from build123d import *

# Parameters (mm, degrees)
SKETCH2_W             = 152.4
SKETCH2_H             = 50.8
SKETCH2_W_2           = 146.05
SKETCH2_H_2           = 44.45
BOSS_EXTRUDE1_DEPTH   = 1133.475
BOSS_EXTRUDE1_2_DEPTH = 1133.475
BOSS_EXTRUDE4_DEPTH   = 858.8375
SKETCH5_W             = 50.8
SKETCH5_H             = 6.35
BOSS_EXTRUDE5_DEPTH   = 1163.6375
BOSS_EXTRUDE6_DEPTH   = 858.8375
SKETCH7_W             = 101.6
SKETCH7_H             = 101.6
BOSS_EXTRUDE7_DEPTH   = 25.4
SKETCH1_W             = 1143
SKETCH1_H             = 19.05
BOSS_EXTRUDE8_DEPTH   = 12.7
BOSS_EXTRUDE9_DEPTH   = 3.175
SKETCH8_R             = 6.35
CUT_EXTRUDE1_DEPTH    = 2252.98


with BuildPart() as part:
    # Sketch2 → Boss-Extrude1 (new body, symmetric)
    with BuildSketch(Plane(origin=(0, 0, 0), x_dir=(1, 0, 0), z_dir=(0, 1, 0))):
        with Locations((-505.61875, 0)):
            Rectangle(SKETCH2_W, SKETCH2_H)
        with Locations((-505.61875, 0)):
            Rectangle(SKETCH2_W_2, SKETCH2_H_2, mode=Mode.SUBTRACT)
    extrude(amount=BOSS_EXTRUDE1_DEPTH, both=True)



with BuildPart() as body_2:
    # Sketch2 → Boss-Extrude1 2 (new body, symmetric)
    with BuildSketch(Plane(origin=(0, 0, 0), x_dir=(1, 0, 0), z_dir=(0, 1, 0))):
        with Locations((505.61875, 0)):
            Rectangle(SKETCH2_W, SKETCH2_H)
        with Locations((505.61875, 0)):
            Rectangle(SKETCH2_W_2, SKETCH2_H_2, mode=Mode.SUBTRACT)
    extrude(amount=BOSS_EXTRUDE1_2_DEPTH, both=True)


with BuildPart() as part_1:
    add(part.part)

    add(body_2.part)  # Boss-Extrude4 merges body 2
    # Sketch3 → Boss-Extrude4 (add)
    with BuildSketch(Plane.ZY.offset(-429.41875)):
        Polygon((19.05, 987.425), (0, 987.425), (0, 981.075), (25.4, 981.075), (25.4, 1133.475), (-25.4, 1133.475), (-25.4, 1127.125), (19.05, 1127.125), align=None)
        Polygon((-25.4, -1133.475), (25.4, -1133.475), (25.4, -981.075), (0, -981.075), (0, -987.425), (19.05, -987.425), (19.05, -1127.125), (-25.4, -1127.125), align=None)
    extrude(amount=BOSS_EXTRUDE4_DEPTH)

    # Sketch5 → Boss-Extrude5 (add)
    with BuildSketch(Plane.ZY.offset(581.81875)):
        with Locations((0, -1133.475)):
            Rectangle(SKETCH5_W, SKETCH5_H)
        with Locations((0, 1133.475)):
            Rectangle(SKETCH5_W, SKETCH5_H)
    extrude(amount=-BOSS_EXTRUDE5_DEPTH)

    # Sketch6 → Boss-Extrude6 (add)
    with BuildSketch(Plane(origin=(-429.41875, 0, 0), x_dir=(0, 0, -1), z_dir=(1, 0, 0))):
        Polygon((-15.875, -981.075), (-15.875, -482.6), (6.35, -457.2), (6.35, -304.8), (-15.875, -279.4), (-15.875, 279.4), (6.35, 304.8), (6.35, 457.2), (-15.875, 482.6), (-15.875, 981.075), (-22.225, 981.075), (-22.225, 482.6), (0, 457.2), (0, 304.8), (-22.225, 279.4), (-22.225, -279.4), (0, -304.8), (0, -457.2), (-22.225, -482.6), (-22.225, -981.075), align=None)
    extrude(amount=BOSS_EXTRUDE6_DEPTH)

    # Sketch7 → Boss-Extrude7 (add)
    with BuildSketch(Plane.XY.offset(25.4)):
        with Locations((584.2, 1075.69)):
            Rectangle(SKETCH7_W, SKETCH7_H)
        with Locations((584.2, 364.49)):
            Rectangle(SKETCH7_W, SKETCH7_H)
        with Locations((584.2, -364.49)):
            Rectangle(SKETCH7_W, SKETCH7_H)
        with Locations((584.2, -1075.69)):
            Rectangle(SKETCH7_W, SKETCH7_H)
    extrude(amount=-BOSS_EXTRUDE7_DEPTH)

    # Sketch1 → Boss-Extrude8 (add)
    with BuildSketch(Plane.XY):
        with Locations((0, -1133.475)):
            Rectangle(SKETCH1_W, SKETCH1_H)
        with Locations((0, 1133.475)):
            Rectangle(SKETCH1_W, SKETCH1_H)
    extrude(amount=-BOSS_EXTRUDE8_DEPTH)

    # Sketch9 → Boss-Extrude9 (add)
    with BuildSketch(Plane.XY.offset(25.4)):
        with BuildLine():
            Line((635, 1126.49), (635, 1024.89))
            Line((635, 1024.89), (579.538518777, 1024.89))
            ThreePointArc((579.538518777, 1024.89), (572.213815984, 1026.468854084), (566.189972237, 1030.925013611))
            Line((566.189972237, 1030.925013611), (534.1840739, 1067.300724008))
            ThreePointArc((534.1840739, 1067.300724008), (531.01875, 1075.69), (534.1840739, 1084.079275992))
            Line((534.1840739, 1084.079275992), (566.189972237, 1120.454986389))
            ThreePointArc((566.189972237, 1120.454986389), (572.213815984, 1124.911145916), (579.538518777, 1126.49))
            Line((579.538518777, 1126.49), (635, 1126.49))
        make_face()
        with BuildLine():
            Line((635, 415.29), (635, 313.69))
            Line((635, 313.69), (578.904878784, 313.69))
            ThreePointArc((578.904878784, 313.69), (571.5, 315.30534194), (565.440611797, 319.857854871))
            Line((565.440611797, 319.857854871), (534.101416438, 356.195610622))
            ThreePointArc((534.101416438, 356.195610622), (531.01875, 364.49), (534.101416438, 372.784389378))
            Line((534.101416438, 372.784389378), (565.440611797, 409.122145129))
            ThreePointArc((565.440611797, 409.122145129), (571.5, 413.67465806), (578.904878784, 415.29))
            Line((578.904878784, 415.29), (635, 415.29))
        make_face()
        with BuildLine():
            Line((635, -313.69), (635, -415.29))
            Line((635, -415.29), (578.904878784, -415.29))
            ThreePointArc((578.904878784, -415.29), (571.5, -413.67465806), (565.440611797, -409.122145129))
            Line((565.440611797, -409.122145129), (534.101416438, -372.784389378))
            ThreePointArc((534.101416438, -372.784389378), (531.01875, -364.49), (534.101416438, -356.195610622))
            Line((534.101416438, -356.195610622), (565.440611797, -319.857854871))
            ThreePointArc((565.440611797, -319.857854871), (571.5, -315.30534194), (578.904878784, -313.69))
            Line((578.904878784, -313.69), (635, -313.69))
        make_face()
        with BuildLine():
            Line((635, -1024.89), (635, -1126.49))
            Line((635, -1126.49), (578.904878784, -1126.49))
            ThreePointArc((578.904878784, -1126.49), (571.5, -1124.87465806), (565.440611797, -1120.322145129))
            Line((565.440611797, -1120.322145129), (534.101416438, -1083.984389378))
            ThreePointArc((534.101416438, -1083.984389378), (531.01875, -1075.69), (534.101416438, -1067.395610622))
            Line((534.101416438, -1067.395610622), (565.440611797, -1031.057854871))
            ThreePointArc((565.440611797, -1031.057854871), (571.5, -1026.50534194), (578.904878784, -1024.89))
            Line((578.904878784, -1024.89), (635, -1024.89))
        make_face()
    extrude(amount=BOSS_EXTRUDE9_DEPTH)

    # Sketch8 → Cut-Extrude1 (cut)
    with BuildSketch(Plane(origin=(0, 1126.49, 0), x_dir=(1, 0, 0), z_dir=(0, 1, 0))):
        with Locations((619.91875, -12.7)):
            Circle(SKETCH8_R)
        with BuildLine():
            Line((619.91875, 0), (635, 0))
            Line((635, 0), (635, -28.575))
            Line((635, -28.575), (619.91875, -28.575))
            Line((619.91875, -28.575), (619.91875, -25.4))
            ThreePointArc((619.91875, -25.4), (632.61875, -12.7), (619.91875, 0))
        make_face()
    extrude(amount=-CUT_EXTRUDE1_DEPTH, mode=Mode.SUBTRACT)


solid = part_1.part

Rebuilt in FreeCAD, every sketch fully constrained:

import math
import FreeCAD as App
import Part
import Sketcher

V = App.Vector
Q = App.Units.Quantity


def add_polygon(sketch, points):
    """Adds a closed chain of lines whose ends are joined by coincident constraints."""
    first, n = sketch.GeometryCount, len(points)
    for a, b in zip(points, points[1:] + points[:1]):
        sketch.addGeometry(Part.LineSegment(App.Vector(*a, 0), App.Vector(*b, 0)), False)
    for i in range(n):
        sketch.addConstraint(Sketcher.Constraint("Coincident", first + i, 2, first + (i + 1) % n, 1))

doc = App.newDocument("Part")
body = doc.addObject("PartDesign::Body", "Body")

# Sketch on XZ plane
sketch1 = body.newObject("Sketcher::SketchObject", "Sketch")
sketch1.AttachmentSupport = (doc.getObject("XZ_Plane"), [""])
sketch1.MapMode = "FlatFace"
add_polygon(sketch1, [(-582, -25), (-582, 25), (-429, 25), (-429, -25)])  # lines 0-3
add_polygon(sketch1, [(-433, 22), (-579, 22), (-579, -22), (-433, -22)])  # lines 4-7
sketch1.addConstraint(Sketcher.Constraint("Vertical", 0))
sketch1.addConstraint(Sketcher.Constraint("Horizontal", 1))
sketch1.addConstraint(Sketcher.Constraint("Vertical", 2))
sketch1.addConstraint(Sketcher.Constraint("Horizontal", 3))
sketch1.addConstraint(Sketcher.Constraint("Horizontal", 4))
sketch1.addConstraint(Sketcher.Constraint("Vertical", 5))
sketch1.addConstraint(Sketcher.Constraint("Horizontal", 6))
sketch1.addConstraint(Sketcher.Constraint("Vertical", 7))
sketch1.addConstraint(Sketcher.Constraint("DistanceX", 1, 1, 1, 2, Q("6 in")))
sketch1.addConstraint(Sketcher.Constraint("DistanceY", 0, 1, 0, 2, Q("2 in")))
sketch1.addConstraint(Sketcher.Constraint("DistanceY", -1, 1, 0, 2, Q("1 in")))
sketch1.addConstraint(Sketcher.Constraint("DistanceX", 4, 2, 4, 1, Q("5.75 in")))
sketch1.addConstraint(Sketcher.Constraint("DistanceY", 5, 2, 5, 1, Q("1.75 in")))
sketch1.addConstraint(Sketcher.Constraint("DistanceX", 0, 2, -1, 1, Q("22.90625 in")))
sketch1.addConstraint(Sketcher.Constraint("DistanceX", 4, 2, -1, 1, Q("22.78125 in")))
sketch1.addConstraint(Sketcher.Constraint("DistanceY", -1, 1, 4, 2, Q("0.875 in")))
pad1 = body.newObject("PartDesign::Pad", "Pad")
pad1.Profile = sketch1
pad1.Length = Q("89.25 in")
pad1.Midplane = True
body2 = doc.addObject("PartDesign::Body", "Body001")

# Sketch on XZ plane
sketch2 = body2.newObject("Sketcher::SketchObject", "Sketch001")
sketch2.AttachmentSupport = (doc.getObject("XZ_Plane001"), [""])
sketch2.MapMode = "FlatFace"
add_polygon(sketch2, [(429, -25), (429, 25), (582, 25), (582, -25)])  # lines 0-3
add_polygon(sketch2, [(579, 22), (433, 22), (433, -22), (579, -22)])  # lines 4-7
sketch2.addConstraint(Sketcher.Constraint("Vertical", 0))
sketch2.addConstraint(Sketcher.Constraint("Horizontal", 1))
sketch2.addConstraint(Sketcher.Constraint("Vertical", 2))
sketch2.addConstraint(Sketcher.Constraint("Horizontal", 3))
sketch2.addConstraint(Sketcher.Constraint("Horizontal", 4))
sketch2.addConstraint(Sketcher.Constraint("Vertical", 5))
sketch2.addConstraint(Sketcher.Constraint("Horizontal", 6))
sketch2.addConstraint(Sketcher.Constraint("Vertical", 7))
sketch2.addConstraint(Sketcher.Constraint("DistanceX", 1, 1, 1, 2, Q("6 in")))
sketch2.addConstraint(Sketcher.Constraint("DistanceY", 0, 1, 0, 2, Q("2 in")))
sketch2.addConstraint(Sketcher.Constraint("DistanceY", -1, 1, 0, 2, Q("1 in")))
sketch2.addConstraint(Sketcher.Constraint("DistanceX", 4, 2, 4, 1, Q("5.75 in")))
sketch2.addConstraint(Sketcher.Constraint("DistanceY", 5, 2, 5, 1, Q("1.75 in")))
sketch2.addConstraint(Sketcher.Constraint("DistanceX", -1, 1, 0, 2, Q("16.90625 in")))
sketch2.addConstraint(Sketcher.Constraint("DistanceX", -1, 1, 4, 2, Q("17.03125 in")))
sketch2.addConstraint(Sketcher.Constraint("DistanceY", -1, 1, 4, 2, Q("0.875 in")))
pad2 = body2.newObject("PartDesign::Pad", "Pad001")
pad2.Profile = sketch2
pad2.Length = Q("89.25 in")
pad2.Midplane = True
body.AllowCompound = True
doc.recompute()

boolean = body.newObject("PartDesign::Boolean", "Boolean")
boolean.Type = "Fuse"
boolean.addObjects([body2])

# Sketch on YZ plane
sketch3 = body.newObject("Sketcher::SketchObject", "Sketch002")
sketch3.AttachmentSupport = (doc.getObject("YZ_Plane"), [""])
sketch3.MapMode = "FlatFace"
sketch3.AttachmentOffset = App.Placement(V(0, 0, 16.90625 * 25.4), App.Rotation())
add_polygon(sketch3, [(987, 19), (987, 0), (981, 0), (981, 25), (1133, 25), (1133, -25), (1127, -25), (1127, 19)])  # lines 0-7
add_polygon(sketch3, [(-1133, -25), (-1133, 25), (-981, 25), (-981, 0), (-987, 0), (-987, 19), (-1127, 19), (-1127, -25)])  # lines 8-15
sketch3.addConstraint(Sketcher.Constraint("Vertical", 0))
sketch3.addConstraint(Sketcher.Constraint("Horizontal", 1))
sketch3.addConstraint(Sketcher.Constraint("Vertical", 2))
sketch3.addConstraint(Sketcher.Constraint("Horizontal", 3))
sketch3.addConstraint(Sketcher.Constraint("Vertical", 4))
sketch3.addConstraint(Sketcher.Constraint("Horizontal", 5))
sketch3.addConstraint(Sketcher.Constraint("Vertical", 6))
sketch3.addConstraint(Sketcher.Constraint("Horizontal", 7))
sketch3.addConstraint(Sketcher.Constraint("Vertical", 8))
sketch3.addConstraint(Sketcher.Constraint("Horizontal", 9))
sketch3.addConstraint(Sketcher.Constraint("Vertical", 10))
sketch3.addConstraint(Sketcher.Constraint("Horizontal", 11))
sketch3.addConstraint(Sketcher.Constraint("Vertical", 12))
sketch3.addConstraint(Sketcher.Constraint("Horizontal", 13))
sketch3.addConstraint(Sketcher.Constraint("Vertical", 14))
sketch3.addConstraint(Sketcher.Constraint("Horizontal", 15))
sketch3.addConstraint(Sketcher.Constraint("Symmetric", 4, 2, 8, 2, -1, 1))
sketch3.addConstraint(Sketcher.Constraint("Symmetric", 1, 2, 10, 2, -1, 1))
sketch3.addConstraint(Sketcher.Constraint("Symmetric", 0, 2, 11, 2, -2))
sketch3.addConstraint(Sketcher.Constraint("Symmetric", 6, 2, 13, 2, -2))
sketch3.addConstraint(Sketcher.Constraint("Horizontal", 3, 2, 8, 2))
sketch3.addConstraint(Sketcher.Constraint("Horizontal", 5, 2, 14, 2))
sketch3.addConstraint(Sketcher.Constraint("Equal", 1, 5))
sketch3.addConstraint(Sketcher.Constraint("DistanceX", 3, 1, 3, 2, Q("6 in")))
sketch3.addConstraint(Sketcher.Constraint("DistanceY", 2, 1, 2, 2, Q("1 in")))
sketch3.addConstraint(Sketcher.Constraint("DistanceX", 7, 2, 7, 1, Q("5.5 in")))
sketch3.addConstraint(Sketcher.Constraint("DistanceX", 8, 2, 6, 2, Q("89 in")))
sketch3.addConstraint(Sketcher.Constraint("DistanceY", 0, 2, 0, 1, Q("0.75 in")))
pad3 = body.newObject("PartDesign::Pad", "Pad002")
pad3.Profile = sketch3
pad3.Length = Q("33.8125 in")
pad3.Reversed = True

# Sketch on YZ plane
sketch4 = body.newObject("Sketcher::SketchObject", "Sketch003")
sketch4.AttachmentSupport = (doc.getObject("YZ_Plane"), [""])
sketch4.MapMode = "FlatFace"
sketch4.AttachmentOffset = App.Placement(V(0, 0, -22.90625 * 25.4), App.Rotation())
add_polygon(sketch4, [(-1130, -25), (-1137, -25), (-1137, 25), (-1130, 25)])  # lines 0-3
add_polygon(sketch4, [(1137, -25), (1130, -25), (1130, 25), (1137, 25)])  # lines 4-7
sketch4.addConstraint(Sketcher.Constraint("Horizontal", 0))
sketch4.addConstraint(Sketcher.Constraint("Vertical", 1))
sketch4.addConstraint(Sketcher.Constraint("Horizontal", 2))
sketch4.addConstraint(Sketcher.Constraint("Vertical", 3))
sketch4.addConstraint(Sketcher.Constraint("Horizontal", 4))
sketch4.addConstraint(Sketcher.Constraint("Vertical", 5))
sketch4.addConstraint(Sketcher.Constraint("Horizontal", 6))
sketch4.addConstraint(Sketcher.Constraint("Vertical", 7))
sketch4.addConstraint(Sketcher.Constraint("Symmetric", 2, 2, 4, 2, -1, 1))
sketch4.addConstraint(Sketcher.Constraint("Symmetric", 0, 2, 6, 2, -1, 1))
sketch4.addConstraint(Sketcher.Constraint("Horizontal", 3, 2, 4, 2))
sketch4.addConstraint(Sketcher.Constraint("DistanceY", 1, 1, 1, 2, Q("2 in")))
sketch4.addConstraint(Sketcher.Constraint("DistanceX", 3, 2, 4, 2, Q("89 in")))
sketch4.addConstraint(Sketcher.Constraint("DistanceX", 0, 2, 0, 1, Q("0.25 in")))
pad4 = body.newObject("PartDesign::Pad", "Pad003")
pad4.Profile = sketch4
pad4.Length = Q("45.8125 in")

# Sketch on YZ plane
sketch5 = body.newObject("Sketcher::SketchObject", "Sketch004")
sketch5.AttachmentSupport = (doc.getObject("YZ_Plane"), [""])
sketch5.MapMode = "FlatFace"
sketch5.AttachmentOffset = App.Placement(V(0, 0, -16.90625 * 25.4), App.Rotation())
add_polygon(sketch5, [(-981, 16), (-483, 16), (-457, -6), (-305, -6), (-279, 16), (279, 16), (305, -6), (457, -6), (483, 16), (981, 16), (981, 22), (483, 22), (457, 0), (305, 0), (279, 22), (-279, 22), (-305, 0), (-457, 0), (-483, 22), (-981, 22)])  # lines 0-19
sketch5.addConstraint(Sketcher.Constraint("Horizontal", 0))
sketch5.addConstraint(Sketcher.Constraint("Horizontal", 2))
sketch5.addConstraint(Sketcher.Constraint("Horizontal", 4))
sketch5.addConstraint(Sketcher.Constraint("Horizontal", 6))
sketch5.addConstraint(Sketcher.Constraint("Horizontal", 8))
sketch5.addConstraint(Sketcher.Constraint("Vertical", 9))
sketch5.addConstraint(Sketcher.Constraint("Horizontal", 10))
sketch5.addConstraint(Sketcher.Constraint("Horizontal", 12))
sketch5.addConstraint(Sketcher.Constraint("Horizontal", 14))
sketch5.addConstraint(Sketcher.Constraint("Horizontal", 16))
sketch5.addConstraint(Sketcher.Constraint("Horizontal", 18))
sketch5.addConstraint(Sketcher.Constraint("Vertical", 19))
sketch5.addConstraint(Sketcher.Constraint("Symmetric", 12, 2, 15, 2, -1, 1))
sketch5.addConstraint(Sketcher.Constraint("Symmetric", 2, 2, 5, 2, -2))
sketch5.addConstraint(Sketcher.Constraint("Symmetric", 0, 2, 7, 2, -2))
sketch5.addConstraint(Sketcher.Constraint("Symmetric", 11, 2, 16, 2, -2))
sketch5.addConstraint(Sketcher.Constraint("Symmetric", 10, 2, 17, 2, -2))
sketch5.addConstraint(Sketcher.Constraint("Parallel", 1, 5))
sketch5.addConstraint(Sketcher.Constraint("Parallel", 3, 7))
sketch5.addConstraint(Sketcher.Constraint("Parallel", 7, 11))
sketch5.addConstraint(Sketcher.Constraint("Parallel", 5, 13))
sketch5.addConstraint(Sketcher.Constraint("Parallel", 11, 15))
sketch5.addConstraint(Sketcher.Constraint("Parallel", 13, 17))
sketch5.addConstraint(Sketcher.Constraint("Horizontal", 0, 2, 3, 2))
sketch5.addConstraint(Sketcher.Constraint("Horizontal", 10, 2, 13, 2))
sketch5.addConstraint(Sketcher.Constraint("Vertical", 7, 2, 10, 2))
sketch5.addConstraint(Sketcher.Constraint("Vertical", 6, 2, 11, 2))
sketch5.addConstraint(Sketcher.Constraint("Vertical", 5, 2, 12, 2))
sketch5.addConstraint(Sketcher.Constraint("Equal", 0, 8))
sketch5.addConstraint(Sketcher.Constraint("DistanceX", 2, 1, 2, 2, Q("6 in")))
sketch5.addConstraint(Sketcher.Constraint("DistanceX", 4, 1, 4, 2, Q("22 in")))
sketch5.addConstraint(Sketcher.Constraint("DistanceX", 0, 2, -1, 1, Q("19 in")))
sketch5.addConstraint(Sketcher.Constraint("DistanceY", 9, 1, 9, 2, Q("0.25 in")))
sketch5.addConstraint(Sketcher.Constraint("DistanceX", 0, 1, 0, 2, Q("19.625 in")))
sketch5.addConstraint(Sketcher.Constraint("DistanceY", -1, 1, 0, 2, Q("0.625 in")))
pad5 = body.newObject("PartDesign::Pad", "Pad004")
pad5.Profile = sketch5
pad5.Length = Q("33.8125 in")

# Sketch on XY plane
sketch6 = body.newObject("Sketcher::SketchObject", "Sketch005")
sketch6.AttachmentSupport = (doc.getObject("XY_Plane"), [""])
sketch6.MapMode = "FlatFace"
sketch6.AttachmentOffset = App.Placement(V(0, 0, 1 * 25.4), App.Rotation())
add_polygon(sketch6, [(533, 1126), (533, 1025), (635, 1025), (635, 1126)])  # lines 0-3
add_polygon(sketch6, [(533, 415), (533, 314), (635, 314), (635, 415)])  # lines 4-7
add_polygon(sketch6, [(533, -314), (533, -415), (635, -415), (635, -314)])  # lines 8-11
add_polygon(sketch6, [(533, -1025), (533, -1126), (635, -1126), (635, -1025)])  # lines 12-15
sketch6.addConstraint(Sketcher.Constraint("Vertical", 0))
sketch6.addConstraint(Sketcher.Constraint("Horizontal", 1))
sketch6.addConstraint(Sketcher.Constraint("Vertical", 2))
sketch6.addConstraint(Sketcher.Constraint("Horizontal", 3))
sketch6.addConstraint(Sketcher.Constraint("Vertical", 4))
sketch6.addConstraint(Sketcher.Constraint("Horizontal", 5))
sketch6.addConstraint(Sketcher.Constraint("Vertical", 6))
sketch6.addConstraint(Sketcher.Constraint("Horizontal", 7))
sketch6.addConstraint(Sketcher.Constraint("Vertical", 8))
sketch6.addConstraint(Sketcher.Constraint("Horizontal", 9))
sketch6.addConstraint(Sketcher.Constraint("Vertical", 10))
sketch6.addConstraint(Sketcher.Constraint("Horizontal", 11))
sketch6.addConstraint(Sketcher.Constraint("Vertical", 12))
sketch6.addConstraint(Sketcher.Constraint("Horizontal", 13))
sketch6.addConstraint(Sketcher.Constraint("Vertical", 14))
sketch6.addConstraint(Sketcher.Constraint("Horizontal", 15))
sketch6.addConstraint(Sketcher.Constraint("Symmetric", 7, 2, 8, 2, -1))
sketch6.addConstraint(Sketcher.Constraint("Symmetric", 5, 2, 10, 2, -1))
sketch6.addConstraint(Sketcher.Constraint("Symmetric", 3, 2, 12, 2, -1))
sketch6.addConstraint(Sketcher.Constraint("Symmetric", 1, 2, 14, 2, -1))
sketch6.addConstraint(Sketcher.Constraint("Vertical", 3, 2, 4, 2))
sketch6.addConstraint(Sketcher.Constraint("Vertical", 2, 2, 5, 2))
sketch6.addConstraint(Sketcher.Constraint("Equal", 15, 0))
sketch6.addConstraint(Sketcher.Constraint("Equal", 2, 4))
sketch6.addConstraint(Sketcher.Constraint("DistanceX", 1, 1, 1, 2, Q("4 in")))
sketch6.addConstraint(Sketcher.Constraint("DistanceX", -1, 1, 0, 2, Q("21 in")))
sketch6.addConstraint(Sketcher.Constraint("DistanceY", 4, 2, 0, 2, Q("28 in")))
sketch6.addConstraint(Sketcher.Constraint("DistanceY", 8, 2, 4, 2, Q("28.7 in")))
pad6 = body.newObject("PartDesign::Pad", "Pad005")
pad6.Profile = sketch6
pad6.Length = Q("1 in")
pad6.Reversed = True

# Sketch on XY plane
sketch7 = body.newObject("Sketcher::SketchObject", "Sketch006")
sketch7.AttachmentSupport = (doc.getObject("XY_Plane"), [""])
sketch7.MapMode = "FlatFace"
add_polygon(sketch7, [(-572, -1124), (-572, -1143), (572, -1143), (572, -1124)])  # lines 0-3
add_polygon(sketch7, [(-572, 1143), (-572, 1124), (572, 1124), (572, 1143)])  # lines 4-7
sketch7.addConstraint(Sketcher.Constraint("Vertical", 0))
sketch7.addConstraint(Sketcher.Constraint("Horizontal", 1))
sketch7.addConstraint(Sketcher.Constraint("Vertical", 2))
sketch7.addConstraint(Sketcher.Constraint("Horizontal", 3))
sketch7.addConstraint(Sketcher.Constraint("Vertical", 4))
sketch7.addConstraint(Sketcher.Constraint("Horizontal", 5))
sketch7.addConstraint(Sketcher.Constraint("Vertical", 6))
sketch7.addConstraint(Sketcher.Constraint("Horizontal", 7))
sketch7.addConstraint(Sketcher.Constraint("Symmetric", 2, 2, 4, 2, -1, 1))
sketch7.addConstraint(Sketcher.Constraint("Symmetric", 0, 2, 6, 2, -1, 1))
sketch7.addConstraint(Sketcher.Constraint("Vertical", 3, 2, 4, 2))
sketch7.addConstraint(Sketcher.Constraint("DistanceX", 1, 1, 1, 2, Q("45 in")))
sketch7.addConstraint(Sketcher.Constraint("DistanceY", 0, 2, -1, 1, Q("45 in")))
sketch7.addConstraint(Sketcher.Constraint("DistanceY", 0, 2, 0, 1, Q("0.75 in")))
pad7 = body.newObject("PartDesign::Pad", "Pad006")
pad7.Profile = sketch7
pad7.Length = Q("0.5 in")
pad7.Reversed = True

# Sketch on XY plane
sketch8 = body.newObject("Sketcher::SketchObject", "Sketch007")
sketch8.AttachmentSupport = (doc.getObject("XY_Plane"), [""])
sketch8.MapMode = "FlatFace"
sketch8.AttachmentOffset = App.Placement(V(0, 0, 1 * 25.4), App.Rotation())
sketch8.addGeometry(Part.LineSegment(V(635, 1025, 0), V(635, 1126, 0)), False)
sketch8.addGeometry(Part.LineSegment(V(635, 1126, 0), V(580, 1126, 0)), False)
sketch8.addGeometry(Part.ArcOfCircle(Part.Circle(V(580, 1109, 0), V(0, 0, 1), 18), math.radians(90), math.radians(139)), False)
sketch8.addGeometry(Part.LineSegment(V(566, 1120, 0), V(534, 1084, 0)), False)
sketch8.addGeometry(Part.ArcOfCircle(Part.Circle(V(544, 1076, 0), V(0, 0, 1), 13), math.radians(139), math.radians(221)), False)
sketch8.addGeometry(Part.LineSegment(V(534, 1067, 0), V(566, 1031, 0)), False)
sketch8.addGeometry(Part.ArcOfCircle(Part.Circle(V(580, 1043, 0), V(0, 0, 1), 18), math.radians(-139), math.radians(-90)), False)
sketch8.addGeometry(Part.LineSegment(V(580, 1025, 0), V(635, 1025, 0)), False)
sketch8.addGeometry(Part.LineSegment(V(635, 314, 0), V(635, 415, 0)), False)
sketch8.addGeometry(Part.LineSegment(V(635, 415, 0), V(579, 415, 0)), False)
sketch8.addGeometry(Part.ArcOfCircle(Part.Circle(V(579, 398, 0), V(0, 0, 1), 18), math.radians(90), math.radians(139)), False)
sketch8.addGeometry(Part.LineSegment(V(565, 409, 0), V(534, 373, 0)), False)
sketch8.addGeometry(Part.ArcOfCircle(Part.Circle(V(544, 364, 0), V(0, 0, 1), 13), math.radians(139), math.radians(221)), False)
sketch8.addGeometry(Part.LineSegment(V(534, 356, 0), V(565, 320, 0)), False)
sketch8.addGeometry(Part.ArcOfCircle(Part.Circle(V(579, 331, 0), V(0, 0, 1), 18), math.radians(-139), math.radians(-90)), False)
sketch8.addGeometry(Part.LineSegment(V(579, 314, 0), V(635, 314, 0)), False)
sketch8.addGeometry(Part.LineSegment(V(635, -415, 0), V(635, -314, 0)), False)
sketch8.addGeometry(Part.LineSegment(V(635, -314, 0), V(579, -314, 0)), False)
sketch8.addGeometry(Part.ArcOfCircle(Part.Circle(V(579, -331, 0), V(0, 0, 1), 18), math.radians(90), math.radians(139)), False)
sketch8.addGeometry(Part.LineSegment(V(565, -320, 0), V(534, -356, 0)), False)
sketch8.addGeometry(Part.ArcOfCircle(Part.Circle(V(544, -364, 0), V(0, 0, 1), 13), math.radians(139), math.radians(221)), False)
sketch8.addGeometry(Part.LineSegment(V(534, -373, 0), V(565, -409, 0)), False)
sketch8.addGeometry(Part.ArcOfCircle(Part.Circle(V(579, -398, 0), V(0, 0, 1), 18), math.radians(-139), math.radians(-90)), False)
sketch8.addGeometry(Part.LineSegment(V(579, -415, 0), V(635, -415, 0)), False)
sketch8.addGeometry(Part.LineSegment(V(635, -1126, 0), V(635, -1025, 0)), False)
sketch8.addGeometry(Part.LineSegment(V(635, -1025, 0), V(579, -1025, 0)), False)
sketch8.addGeometry(Part.ArcOfCircle(Part.Circle(V(579, -1043, 0), V(0, 0, 1), 18), math.radians(90), math.radians(139)), False)
sketch8.addGeometry(Part.LineSegment(V(565, -1031, 0), V(534, -1067, 0)), False)
sketch8.addGeometry(Part.ArcOfCircle(Part.Circle(V(544, -1076, 0), V(0, 0, 1), 13), math.radians(139), math.radians(221)), False)
sketch8.addGeometry(Part.LineSegment(V(534, -1084, 0), V(565, -1120, 0)), False)
sketch8.addGeometry(Part.ArcOfCircle(Part.Circle(V(579, -1109, 0), V(0, 0, 1), 18), math.radians(-139), math.radians(-90)), False)
sketch8.addGeometry(Part.LineSegment(V(579, -1126, 0), V(635, -1126, 0)), False)
sketch8.addConstraint(Sketcher.Constraint("Coincident", 0, 2, 1, 1))
sketch8.addConstraint(Sketcher.Constraint("Tangent", 1, 2, 2, 1))
sketch8.addConstraint(Sketcher.Constraint("Tangent", 2, 2, 3, 1))
sketch8.addConstraint(Sketcher.Constraint("Tangent", 3, 2, 4, 1))
sketch8.addConstraint(Sketcher.Constraint("Tangent", 4, 2, 5, 1))
sketch8.addConstraint(Sketcher.Constraint("Tangent", 5, 2, 6, 1))
sketch8.addConstraint(Sketcher.Constraint("Tangent", 6, 2, 7, 1))
sketch8.addConstraint(Sketcher.Constraint("Coincident", 7, 2, 0, 1))
sketch8.addConstraint(Sketcher.Constraint("Coincident", 8, 2, 9, 1))
sketch8.addConstraint(Sketcher.Constraint("Tangent", 9, 2, 10, 1))
sketch8.addConstraint(Sketcher.Constraint("Tangent", 10, 2, 11, 1))
sketch8.addConstraint(Sketcher.Constraint("Tangent", 11, 2, 12, 1))
sketch8.addConstraint(Sketcher.Constraint("Tangent", 12, 2, 13, 1))
sketch8.addConstraint(Sketcher.Constraint("Tangent", 13, 2, 14, 1))
sketch8.addConstraint(Sketcher.Constraint("Tangent", 14, 2, 15, 1))
sketch8.addConstraint(Sketcher.Constraint("Coincident", 15, 2, 8, 1))
sketch8.addConstraint(Sketcher.Constraint("Coincident", 16, 2, 17, 1))
sketch8.addConstraint(Sketcher.Constraint("Tangent", 17, 2, 18, 1))
sketch8.addConstraint(Sketcher.Constraint("Tangent", 18, 2, 19, 1))
sketch8.addConstraint(Sketcher.Constraint("Tangent", 19, 2, 20, 1))
sketch8.addConstraint(Sketcher.Constraint("Tangent", 20, 2, 21, 1))
sketch8.addConstraint(Sketcher.Constraint("Tangent", 21, 2, 22, 1))
sketch8.addConstraint(Sketcher.Constraint("Tangent", 22, 2, 23, 1))
sketch8.addConstraint(Sketcher.Constraint("Coincident", 23, 2, 16, 1))
sketch8.addConstraint(Sketcher.Constraint("Coincident", 24, 2, 25, 1))
sketch8.addConstraint(Sketcher.Constraint("Tangent", 25, 2, 26, 1))
sketch8.addConstraint(Sketcher.Constraint("Tangent", 26, 2, 27, 1))
sketch8.addConstraint(Sketcher.Constraint("Tangent", 27, 2, 28, 1))
sketch8.addConstraint(Sketcher.Constraint("Tangent", 28, 2, 29, 1))
sketch8.addConstraint(Sketcher.Constraint("Tangent", 29, 2, 30, 1))
sketch8.addConstraint(Sketcher.Constraint("Tangent", 30, 2, 31, 1))
sketch8.addConstraint(Sketcher.Constraint("Coincident", 31, 2, 24, 1))
sketch8.addConstraint(Sketcher.Constraint("Vertical", 0))
sketch8.addConstraint(Sketcher.Constraint("Horizontal", 1))
sketch8.addConstraint(Sketcher.Constraint("Horizontal", 7))
sketch8.addConstraint(Sketcher.Constraint("Vertical", 8))
sketch8.addConstraint(Sketcher.Constraint("Horizontal", 9))
sketch8.addConstraint(Sketcher.Constraint("Horizontal", 15))
sketch8.addConstraint(Sketcher.Constraint("Vertical", 16))
sketch8.addConstraint(Sketcher.Constraint("Horizontal", 17))
sketch8.addConstraint(Sketcher.Constraint("Horizontal", 23))
sketch8.addConstraint(Sketcher.Constraint("Vertical", 24))
sketch8.addConstraint(Sketcher.Constraint("Horizontal", 25))
sketch8.addConstraint(Sketcher.Constraint("Horizontal", 31))
sketch8.addConstraint(Sketcher.Constraint("Equal", 2, 6))
sketch8.addConstraint(Sketcher.Constraint("Equal", 6, 10))
sketch8.addConstraint(Sketcher.Constraint("Equal", 4, 12))
sketch8.addConstraint(Sketcher.Constraint("Equal", 10, 14))
sketch8.addConstraint(Sketcher.Constraint("Equal", 14, 18))
sketch8.addConstraint(Sketcher.Constraint("Equal", 12, 20))
sketch8.addConstraint(Sketcher.Constraint("Equal", 18, 22))
sketch8.addConstraint(Sketcher.Constraint("Equal", 22, 26))
sketch8.addConstraint(Sketcher.Constraint("Equal", 20, 28))
sketch8.addConstraint(Sketcher.Constraint("Equal", 26, 30))
sketch8.addConstraint(Sketcher.Constraint("Symmetric", 14, 3, 18, 3, -1))
sketch8.addConstraint(Sketcher.Constraint("Symmetric", 12, 3, 20, 3, -1))
sketch8.addConstraint(Sketcher.Constraint("Symmetric", 10, 3, 22, 3, -1))
sketch8.addConstraint(Sketcher.Constraint("Symmetric", 4, 3, 28, 3, -1))
sketch8.addConstraint(Sketcher.Constraint("Symmetric", 7, 2, 24, 2, -1))
sketch8.addConstraint(Sketcher.Constraint("Parallel", 11, 19))
sketch8.addConstraint(Sketcher.Constraint("Parallel", 19, 27))
sketch8.addConstraint(Sketcher.Constraint("Parallel", 21, 29))
sketch8.addConstraint(Sketcher.Constraint("Vertical", 2, 3, 6, 3))
sketch8.addConstraint(Sketcher.Constraint("Vertical", 4, 3, 12, 3))
sketch8.addConstraint(Sketcher.Constraint("Vertical", 10, 3, 14, 3))
sketch8.addConstraint(Sketcher.Constraint("Vertical", 22, 3, 26, 3))
sketch8.addConstraint(Sketcher.Constraint("Vertical", 26, 3, 30, 3))
sketch8.addConstraint(Sketcher.Constraint("Vertical", 3, 2, 4, 2))
sketch8.addConstraint(Sketcher.Constraint("Vertical", 7, 2, 8, 2))
sketch8.addConstraint(Sketcher.Constraint("Vertical", 15, 2, 16, 2))
sketch8.addConstraint(Sketcher.Constraint("Radius", 2, Q("0.7 in")))
sketch8.addConstraint(Sketcher.Constraint("Radius", 4, Q("0.5 in")))
sketch8.addConstraint(Sketcher.Constraint("DistanceY", 0, 1, 0, 2, Q("4 in")))
sketch8.addConstraint(Sketcher.Constraint("DistanceX", -1, 1, 0, 2, Q("25 in")))
sketch8.addConstraint(Sketcher.Constraint("DistanceY", 10, 3, 2, 3, Q("28 in")))
sketch8.addConstraint(Sketcher.Constraint("DistanceY", 20, 3, 10, 3, Q("30 in")))
sketch8.addConstraint(Sketcher.Constraint("DistanceX", -1, 1, 4, 3, Q("21.40625 in")))
sketch8.addConstraint(Sketcher.Constraint("DistanceX", 1, 2, 1, 1, 55.461481))
sketch8.addConstraint(Sketcher.Constraint("DistanceX", 9, 2, 9, 1, 56.095121))
pad8 = body.newObject("PartDesign::Pad", "Pad007")
pad8.Profile = sketch8
pad8.Length = Q("0.125 in")

# Sketch on XZ plane
sketch9 = body.newObject("Sketcher::SketchObject", "Sketch008")
sketch9.AttachmentSupport = (doc.getObject("XZ_Plane"), [""])
sketch9.MapMode = "FlatFace"
sketch9.AttachmentOffset = App.Placement(V(0, 0, -44.35 * 25.4), App.Rotation())
sketch9.addGeometry(Part.Circle(V(619.9, 12.7, 0), V(0, 0, 1), 6.3), False)
sketch9.addGeometry(Part.LineSegment(V(635, 0, 0), V(619.9, 0, 0)), False)
sketch9.addGeometry(Part.ArcOfCircle(Part.Circle(V(619.9, 12.7, 0), V(0, 0, 1), 12.7), math.radians(-90), math.radians(90)), False)
sketch9.addGeometry(Part.LineSegment(V(619.9, 25.4, 0), V(619.9, 28.6, 0)), False)
sketch9.addGeometry(Part.LineSegment(V(619.9, 28.6, 0), V(635, 28.6, 0)), False)
sketch9.addGeometry(Part.LineSegment(V(635, 28.6, 0), V(635, 0, 0)), False)
sketch9.addConstraint(Sketcher.Constraint("Tangent", 1, 2, 2, 1))
sketch9.addConstraint(Sketcher.Constraint("Coincident", 2, 2, 3, 1))
sketch9.addConstraint(Sketcher.Constraint("Coincident", 3, 2, 4, 1))
sketch9.addConstraint(Sketcher.Constraint("Coincident", 4, 2, 5, 1))
sketch9.addConstraint(Sketcher.Constraint("Coincident", 5, 2, 1, 1))
sketch9.addConstraint(Sketcher.Constraint("Horizontal", 1))
sketch9.addConstraint(Sketcher.Constraint("Vertical", 3))
sketch9.addConstraint(Sketcher.Constraint("Horizontal", 4))
sketch9.addConstraint(Sketcher.Constraint("Vertical", 5))
sketch9.addConstraint(Sketcher.Constraint("Coincident", 2, 3, 0, 3))
sketch9.addConstraint(Sketcher.Constraint("PointOnObject", 1, 2, -1))
sketch9.addConstraint(Sketcher.Constraint("Vertical", 1, 2, 2, 2))
sketch9.addConstraint(Sketcher.Constraint("Diameter", 0, Q("0.5 in")))
sketch9.addConstraint(Sketcher.Constraint("Radius", 2, Q("0.5 in")))
sketch9.addConstraint(Sketcher.Constraint("DistanceX", -1, 1, 4, 2, Q("25 in")))
sketch9.addConstraint(Sketcher.Constraint("DistanceX", 1, 2, 1, 1, Q("0.59375 in")))
sketch9.addConstraint(Sketcher.Constraint("DistanceY", 3, 1, 3, 2, Q("0.125 in")))
pocket1 = body.newObject("PartDesign::Pocket", "Pocket")
pocket1.Profile = sketch9
pocket1.Length = Q("88.7 in")
pocket1.Reversed = True

doc.recompute()
